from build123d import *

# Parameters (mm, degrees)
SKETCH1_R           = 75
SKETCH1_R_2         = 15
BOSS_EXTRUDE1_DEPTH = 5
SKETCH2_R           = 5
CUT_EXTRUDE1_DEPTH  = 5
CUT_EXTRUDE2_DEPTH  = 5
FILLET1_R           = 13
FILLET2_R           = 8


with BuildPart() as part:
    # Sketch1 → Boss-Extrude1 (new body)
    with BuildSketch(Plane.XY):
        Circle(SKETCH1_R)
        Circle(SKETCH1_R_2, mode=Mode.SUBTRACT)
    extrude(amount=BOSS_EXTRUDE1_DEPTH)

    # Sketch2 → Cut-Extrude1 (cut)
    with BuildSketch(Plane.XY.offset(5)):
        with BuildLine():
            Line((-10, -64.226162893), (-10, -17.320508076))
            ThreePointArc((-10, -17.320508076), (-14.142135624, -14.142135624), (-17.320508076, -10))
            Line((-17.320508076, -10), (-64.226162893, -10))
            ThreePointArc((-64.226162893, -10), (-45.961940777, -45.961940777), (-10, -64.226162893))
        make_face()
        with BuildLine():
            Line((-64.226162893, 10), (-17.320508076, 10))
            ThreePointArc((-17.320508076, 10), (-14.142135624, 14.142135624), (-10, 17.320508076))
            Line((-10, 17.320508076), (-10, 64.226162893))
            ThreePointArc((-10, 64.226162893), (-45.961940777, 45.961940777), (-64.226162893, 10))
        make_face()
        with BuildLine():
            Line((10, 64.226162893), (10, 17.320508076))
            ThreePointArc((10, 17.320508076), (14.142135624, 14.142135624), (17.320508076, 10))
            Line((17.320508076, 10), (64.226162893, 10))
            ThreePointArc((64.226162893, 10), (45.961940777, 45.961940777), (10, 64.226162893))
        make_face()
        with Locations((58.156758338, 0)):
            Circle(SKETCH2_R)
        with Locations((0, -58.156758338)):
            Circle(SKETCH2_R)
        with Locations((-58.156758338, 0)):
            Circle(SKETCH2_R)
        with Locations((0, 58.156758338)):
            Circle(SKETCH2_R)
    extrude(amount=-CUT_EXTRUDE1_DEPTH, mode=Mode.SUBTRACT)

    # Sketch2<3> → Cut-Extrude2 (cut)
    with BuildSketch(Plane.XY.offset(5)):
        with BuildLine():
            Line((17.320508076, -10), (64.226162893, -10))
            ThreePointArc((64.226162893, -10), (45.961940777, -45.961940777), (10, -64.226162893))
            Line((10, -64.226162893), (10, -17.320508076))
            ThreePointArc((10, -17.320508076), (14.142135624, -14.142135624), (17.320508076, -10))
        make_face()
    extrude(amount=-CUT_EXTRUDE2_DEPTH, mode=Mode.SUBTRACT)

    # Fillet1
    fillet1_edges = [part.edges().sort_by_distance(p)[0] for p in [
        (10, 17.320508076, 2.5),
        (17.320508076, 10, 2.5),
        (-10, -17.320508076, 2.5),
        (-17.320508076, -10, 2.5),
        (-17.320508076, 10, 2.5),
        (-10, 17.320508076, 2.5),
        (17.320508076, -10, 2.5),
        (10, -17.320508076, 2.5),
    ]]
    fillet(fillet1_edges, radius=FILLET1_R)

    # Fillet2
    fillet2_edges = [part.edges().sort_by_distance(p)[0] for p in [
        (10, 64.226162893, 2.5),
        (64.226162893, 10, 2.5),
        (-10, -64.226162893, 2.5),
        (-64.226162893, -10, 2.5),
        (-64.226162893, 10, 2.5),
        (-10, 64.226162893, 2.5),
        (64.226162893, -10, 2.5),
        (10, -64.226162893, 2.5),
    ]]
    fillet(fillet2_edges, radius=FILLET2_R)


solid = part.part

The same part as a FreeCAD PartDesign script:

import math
import FreeCAD as App
import Part
import Sketcher
from FreeCAD import Vector
Q = App.Units.Quantity


def edges_at(feature, points):
    """Names of the edges that pass closest to the given points."""
    edges = feature.Shape.Edges
    near = lambda p: min(range(len(edges)), key=lambda i: edges[i].distToShape(Part.Vertex(*p))[0])
    return sorted({f"Edge{near(p) + 1}" for p in points})

doc = App.newDocument("Part")
body = doc.addObject("PartDesign::Body", "Body")

# Sketch on XY plane
sketch1 = body.newObject("Sketcher::SketchObject", "Sketch")
sketch1.AttachmentSupport = (doc.getObject("XY_Plane"), [""])
sketch1.MapMode = "FlatFace"
sketch1.addGeometry([
    Part.Circle(Vector(0, 0, 0), Vector(0, 0, 1), 75),
    Part.Circle(Vector(0, 0, 0), Vector(0, 0, 1), 15),
], False)
sketch1.addConstraint([
    Sketcher.Constraint("Coincident", 0, 3, -1, 1),
    Sketcher.Constraint("Coincident", 1, 3, -1, 1),
    Sketcher.Constraint("Diameter", 0, Q("150 mm")),
    Sketcher.Constraint("Diameter", 1, Q("30 mm")),
])
pad1 = body.newObject("PartDesign::Pad", "Pad")
pad1.Profile = sketch1
pad1.Length = 5

# Sketch on XY plane
sketch2 = body.newObject("Sketcher::SketchObject", "Sketch001")
sketch2.AttachmentSupport = (doc.getObject("XY_Plane"), [""])
sketch2.MapMode = "FlatFace"
sketch2.AttachmentOffset = App.Placement(Vector(0, 0, 5), App.Rotation())
sketch2.addGeometry([
    Part.LineSegment(Vector(-10, -64, 0), Vector(-10, -17, 0)),  # 0
    Part.ArcOfCircle(Part.Circle(Vector(0, 0, 0), Vector(0, 0, 1), 20), math.radians(-150), math.radians(-120)),  # 1
    Part.LineSegment(Vector(-17, -10, 0), Vector(-64, -10, 0)),  # 2
    Part.ArcOfCircle(Part.Circle(Vector(0, 0, 0), Vector(0, 0, 1), 65), math.radians(-171), math.radians(-99)),  # 3
    Part.LineSegment(Vector(-64, 10, 0), Vector(-17, 10, 0)),  # 4
    Part.ArcOfCircle(Part.Circle(Vector(0, 0, 0), Vector(0, 0, 1), 20), math.radians(120), math.radians(150)),  # 5
    Part.LineSegment(Vector(-10, 17, 0), Vector(-10, 64, 0)),  # 6
    Part.ArcOfCircle(Part.Circle(Vector(0, 0, 0), Vector(0, 0, 1), 65), math.radians(99), math.radians(171)),  # 7
    Part.LineSegment(Vector(10, 64, 0), Vector(10, 17, 0)),  # 8
    Part.ArcOfCircle(Part.Circle(Vector(0, 0, 0), Vector(0, 0, 1), 20), math.radians(30), math.radians(60)),  # 9
    Part.LineSegment(Vector(17, 10, 0), Vector(64, 10, 0)),  # 10
    Part.ArcOfCircle(Part.Circle(Vector(0, 0, 0), Vector(0, 0, 1), 65), math.radians(9), math.radians(81)),  # 11
    Part.Circle(Vector(58, 0, 0), Vector(0, 0, 1), 5),  # 12
    Part.Circle(Vector(0, -58, 0), Vector(0, 0, 1), 5),  # 13
    Part.Circle(Vector(-58, 0, 0), Vector(0, 0, 1), 5),  # 14
    Part.Circle(Vector(0, 58, 0), Vector(0, 0, 1), 5),  # 15
], False)
sketch2.addConstraint([
    Sketcher.Constraint("Coincident", 0, 2, 1, 2),
    Sketcher.Constraint("Coincident", 1, 1, 2, 1),
    Sketcher.Constraint("Coincident", 2, 2, 3, 1),
    Sketcher.Constraint("Coincident", 3, 2, 0, 1),
    Sketcher.Constraint("Coincident", 4, 2, 5, 2),
    Sketcher.Constraint("Coincident", 5, 1, 6, 1),
    Sketcher.Constraint("Coincident", 6, 2, 7, 1),
    Sketcher.Constraint("Coincident", 7, 2, 4, 1),
    Sketcher.Constraint("Coincident", 8, 2, 9, 2),
    Sketcher.Constraint("Coincident", 9, 1, 10, 1),
    Sketcher.Constraint("Coincident", 10, 2, 11, 1),
    Sketcher.Constraint("Coincident", 11, 2, 8, 1),
    Sketcher.Constraint("Vertical", 0),
    Sketcher.Constraint("Horizontal", 2),
    Sketcher.Constraint("Horizontal", 4),
    Sketcher.Constraint("Vertical", 6),
    Sketcher.Constraint("Vertical", 8),
    Sketcher.Constraint("Horizontal", 10),
    Sketcher.Constraint("Coincident", 1, 3, -1, 1),
    Sketcher.Constraint("Coincident", 3, 3, -1, 1),
    Sketcher.Constraint("Coincident", 5, 3, -1, 1),
    Sketcher.Constraint("Coincident", 7, 3, -1, 1),
    Sketcher.Constraint("Coincident", 9, 3, -1, 1),
    Sketcher.Constraint("Coincident", 11, 3, -1, 1),
    Sketcher.Constraint("Equal", 1, 5),
    Sketcher.Constraint("Equal", 3, 7),
    Sketcher.Constraint("Equal", 5, 9),
    Sketcher.Constraint("Equal", 7, 11),
    Sketcher.Constraint("Equal", 12, 13),
    Sketcher.Constraint("Equal", 13, 14),
    Sketcher.Constraint("Equal", 14, 15),
    Sketcher.Constraint("Symmetric", 12, 3, 14, 3, -1, 1),
    Sketcher.Constraint("Symmetric", 13, 3, 15, 3, -1, 1),
    Sketcher.Constraint("PointOnObject", 12, 3, -1),
    Sketcher.Constraint("PointOnObject", 13, 3, -2),
    Sketcher.Constraint("Horizontal", 5, 1, 8, 2),
    Sketcher.Constraint("Horizontal", 7, 2, 9, 1),
    Sketcher.Constraint("Vertical", 1, 1, 4, 2),
    Sketcher.Constraint("Vertical", 3, 2, 5, 1),
    Sketcher.Constraint("Equal", 10, 0),
    Sketcher.Constraint("Diameter", 12, Q("10 mm")),
    Sketcher.Constraint("Radius", 1, Q("20 mm")),
    Sketcher.Constraint("Radius", 3, Q("65 mm")),
    Sketcher.Constraint("DistanceX", 0, 2, -1, 1, Q("10 mm")),
    Sketcher.Constraint("DistanceX", -1, 1, 12, 3, Q("58.156758 mm")),
    Sketcher.Constraint("DistanceY", 13, 3, -1, 1, Q("58.156758 mm")),
])
pocket1 = body.newObject("PartDesign::Pocket", "Pocket")
pocket1.Profile = sketch2
pocket1.Length = 5

# Sketch on XY plane
sketch3 = body.newObject("Sketcher::SketchObject", "Sketch002")
sketch3.AttachmentSupport = (doc.getObject("XY_Plane"), [""])
sketch3.MapMode = "FlatFace"
sketch3.AttachmentOffset = App.Placement(Vector(0, 0, 5), App.Rotation())
sketch3.addGeometry([
    Part.LineSegment(Vector(64, -10, 0), Vector(17, -10, 0)),
    Part.ArcOfCircle(Part.Circle(Vector(0, 0, 0), Vector(0, 0, 1), 20), math.radians(-60), math.radians(-30)),
    Part.LineSegment(Vector(10, -17, 0), Vector(10, -64, 0)),
    Part.ArcOfCircle(Part.Circle(Vector(0, 0, 0), Vector(0, 0, 1), 65), math.radians(-81), math.radians(-9)),
], False)
sketch3.addConstraint([
    Sketcher.Constraint("Coincident", 0, 2, 1, 2),
    Sketcher.Constraint("Coincident", 1, 1, 2, 1),
    Sketcher.Constraint("Coincident", 2, 2, 3, 1),
    Sketcher.Constraint("Coincident", 3, 2, 0, 1),
    Sketcher.Constraint("Horizontal", 0),
    Sketcher.Constraint("Vertical", 2),
    Sketcher.Constraint("Coincident", 1, 3, -1, 1),
    Sketcher.Constraint("Coincident", 3, 3, -1, 1),
    Sketcher.Constraint("Equal", 0, 2),
    Sketcher.Constraint("Radius", 1, Q("20 mm")),
    Sketcher.Constraint("Radius", 3, Q("65 mm")),
    Sketcher.Constraint("DistanceY", 0, 2, -1, 1, Q("10 mm")),
])
pocket2 = body.newObject("PartDesign::Pocket", "Pocket001")
pocket2.Profile = sketch3
pocket2.Length = 5
doc.recompute()

fillet = body.newObject("PartDesign::Fillet", "Fillet")
fillet.Base = (pocket2, edges_at(pocket2, [
    (10, 17.321, 2.5),
    (17.321, 10, 2.5),
    (-10, -17.321, 2.5),
    (-17.321, -10, 2.5),
    (-17.321, 10, 2.5),
    (-10, 17.321, 2.5),
    (17.321, -10, 2.5),
    (10, -17.321, 2.5),
]))
fillet.Radius = 13
doc.recompute()

fillet2 = body.newObject("PartDesign::Fillet", "Fillet001")
fillet2.Base = (fillet, edges_at(fillet, [
    (10, 64.226, 2.5),
    (64.226, 10, 2.5),
    (-10, -64.226, 2.5),
    (-64.226, -10, 2.5),
    (-64.226, 10, 2.5),
    (-10, 64.226, 2.5),
    (64.226, -10, 2.5),
    (10, -64.226, 2.5),
]))
fillet2.Radius = 8

doc.recompute()
